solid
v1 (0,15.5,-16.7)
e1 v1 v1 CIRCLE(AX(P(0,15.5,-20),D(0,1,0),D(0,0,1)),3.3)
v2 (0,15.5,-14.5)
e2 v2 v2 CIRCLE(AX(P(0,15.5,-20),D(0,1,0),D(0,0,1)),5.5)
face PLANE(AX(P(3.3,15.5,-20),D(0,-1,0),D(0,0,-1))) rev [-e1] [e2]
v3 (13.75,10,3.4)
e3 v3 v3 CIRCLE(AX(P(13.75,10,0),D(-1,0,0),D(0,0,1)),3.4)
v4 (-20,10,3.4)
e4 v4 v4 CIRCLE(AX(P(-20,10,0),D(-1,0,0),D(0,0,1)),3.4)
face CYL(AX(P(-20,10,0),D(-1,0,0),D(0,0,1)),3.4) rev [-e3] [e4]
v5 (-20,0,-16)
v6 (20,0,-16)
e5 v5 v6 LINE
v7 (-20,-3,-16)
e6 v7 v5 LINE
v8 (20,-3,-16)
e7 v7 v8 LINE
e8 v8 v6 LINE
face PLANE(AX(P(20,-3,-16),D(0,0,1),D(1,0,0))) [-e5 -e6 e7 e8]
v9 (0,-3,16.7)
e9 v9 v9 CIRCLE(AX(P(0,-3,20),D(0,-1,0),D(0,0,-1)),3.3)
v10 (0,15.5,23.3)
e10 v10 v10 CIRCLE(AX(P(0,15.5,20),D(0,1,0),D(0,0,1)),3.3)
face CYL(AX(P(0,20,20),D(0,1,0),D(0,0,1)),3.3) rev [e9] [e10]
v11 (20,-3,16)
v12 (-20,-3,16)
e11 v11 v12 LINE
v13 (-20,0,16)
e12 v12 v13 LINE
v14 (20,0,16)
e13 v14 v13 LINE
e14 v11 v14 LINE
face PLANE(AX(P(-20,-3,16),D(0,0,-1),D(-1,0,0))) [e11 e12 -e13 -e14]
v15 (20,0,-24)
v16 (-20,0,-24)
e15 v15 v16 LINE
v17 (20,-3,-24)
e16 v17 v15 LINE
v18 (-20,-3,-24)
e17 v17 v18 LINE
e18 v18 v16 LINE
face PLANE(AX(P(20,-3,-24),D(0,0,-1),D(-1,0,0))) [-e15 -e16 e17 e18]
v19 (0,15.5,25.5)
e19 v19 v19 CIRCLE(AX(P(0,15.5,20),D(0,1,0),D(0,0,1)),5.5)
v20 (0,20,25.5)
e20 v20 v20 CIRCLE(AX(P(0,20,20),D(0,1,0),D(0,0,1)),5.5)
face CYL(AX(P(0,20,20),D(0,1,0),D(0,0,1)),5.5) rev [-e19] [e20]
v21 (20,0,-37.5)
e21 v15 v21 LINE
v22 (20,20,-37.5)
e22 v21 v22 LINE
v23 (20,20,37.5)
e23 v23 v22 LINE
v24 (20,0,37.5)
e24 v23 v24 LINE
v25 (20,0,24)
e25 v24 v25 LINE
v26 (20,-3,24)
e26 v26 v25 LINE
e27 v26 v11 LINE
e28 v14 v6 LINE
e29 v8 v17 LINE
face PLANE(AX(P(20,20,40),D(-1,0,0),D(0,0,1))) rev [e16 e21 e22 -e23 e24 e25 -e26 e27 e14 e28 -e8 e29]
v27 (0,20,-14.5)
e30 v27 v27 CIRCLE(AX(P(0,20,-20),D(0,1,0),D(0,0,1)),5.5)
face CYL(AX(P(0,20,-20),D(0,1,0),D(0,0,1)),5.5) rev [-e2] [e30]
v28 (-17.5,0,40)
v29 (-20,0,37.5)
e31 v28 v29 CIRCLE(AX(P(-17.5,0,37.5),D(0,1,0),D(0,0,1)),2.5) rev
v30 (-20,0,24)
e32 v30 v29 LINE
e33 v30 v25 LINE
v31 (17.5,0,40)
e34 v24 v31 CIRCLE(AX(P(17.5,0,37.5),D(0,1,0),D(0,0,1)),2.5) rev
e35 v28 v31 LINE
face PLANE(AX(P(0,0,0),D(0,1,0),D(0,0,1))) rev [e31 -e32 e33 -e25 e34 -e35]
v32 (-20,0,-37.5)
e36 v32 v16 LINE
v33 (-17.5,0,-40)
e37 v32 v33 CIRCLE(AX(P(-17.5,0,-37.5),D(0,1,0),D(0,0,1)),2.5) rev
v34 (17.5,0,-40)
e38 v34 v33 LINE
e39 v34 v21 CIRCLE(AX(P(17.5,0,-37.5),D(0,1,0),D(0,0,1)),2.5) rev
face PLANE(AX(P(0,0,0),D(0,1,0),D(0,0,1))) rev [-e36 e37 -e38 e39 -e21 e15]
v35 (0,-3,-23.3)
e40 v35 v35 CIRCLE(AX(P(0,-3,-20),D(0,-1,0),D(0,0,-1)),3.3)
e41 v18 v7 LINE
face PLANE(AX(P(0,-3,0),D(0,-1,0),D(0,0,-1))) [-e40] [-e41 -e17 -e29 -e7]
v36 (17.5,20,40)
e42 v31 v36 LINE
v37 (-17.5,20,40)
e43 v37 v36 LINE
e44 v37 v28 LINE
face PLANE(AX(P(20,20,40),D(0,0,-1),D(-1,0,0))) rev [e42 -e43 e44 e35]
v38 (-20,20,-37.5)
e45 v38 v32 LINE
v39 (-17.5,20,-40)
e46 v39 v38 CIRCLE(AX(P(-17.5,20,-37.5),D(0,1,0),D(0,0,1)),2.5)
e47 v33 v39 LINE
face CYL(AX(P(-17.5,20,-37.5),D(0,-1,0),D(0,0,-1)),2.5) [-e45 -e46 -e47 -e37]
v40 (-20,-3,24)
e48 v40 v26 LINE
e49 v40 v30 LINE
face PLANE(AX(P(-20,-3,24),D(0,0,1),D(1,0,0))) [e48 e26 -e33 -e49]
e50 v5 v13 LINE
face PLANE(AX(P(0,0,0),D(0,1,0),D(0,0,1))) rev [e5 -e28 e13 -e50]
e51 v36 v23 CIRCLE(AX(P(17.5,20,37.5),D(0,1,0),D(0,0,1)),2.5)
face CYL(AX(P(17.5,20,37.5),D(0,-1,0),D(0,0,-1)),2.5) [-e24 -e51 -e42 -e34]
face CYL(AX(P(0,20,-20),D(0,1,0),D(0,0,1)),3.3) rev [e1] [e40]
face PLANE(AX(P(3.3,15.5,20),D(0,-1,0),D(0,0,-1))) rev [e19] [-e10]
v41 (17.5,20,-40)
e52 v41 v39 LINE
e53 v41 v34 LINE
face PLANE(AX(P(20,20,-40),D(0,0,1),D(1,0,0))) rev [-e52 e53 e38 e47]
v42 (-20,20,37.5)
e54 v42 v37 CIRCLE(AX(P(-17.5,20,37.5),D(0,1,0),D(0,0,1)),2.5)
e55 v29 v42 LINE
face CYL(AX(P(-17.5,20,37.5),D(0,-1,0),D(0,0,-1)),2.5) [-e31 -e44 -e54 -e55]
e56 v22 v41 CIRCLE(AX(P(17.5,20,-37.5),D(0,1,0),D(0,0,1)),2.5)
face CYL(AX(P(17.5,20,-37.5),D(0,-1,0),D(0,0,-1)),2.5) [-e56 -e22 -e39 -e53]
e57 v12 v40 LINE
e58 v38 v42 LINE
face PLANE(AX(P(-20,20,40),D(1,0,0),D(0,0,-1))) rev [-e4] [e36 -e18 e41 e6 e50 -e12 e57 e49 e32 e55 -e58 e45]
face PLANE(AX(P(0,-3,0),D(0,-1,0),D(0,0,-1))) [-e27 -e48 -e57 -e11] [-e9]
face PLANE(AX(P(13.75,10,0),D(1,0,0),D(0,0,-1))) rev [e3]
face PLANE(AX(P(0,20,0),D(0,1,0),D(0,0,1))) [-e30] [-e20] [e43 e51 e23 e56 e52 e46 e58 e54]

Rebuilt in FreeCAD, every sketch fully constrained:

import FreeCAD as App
import Part
import Sketcher

V = App.Vector


def edges_at(feature, points):
    """Names of the edges that pass closest to the given points."""
    edges = feature.Shape.Edges
    near = lambda p: min(range(len(edges)), key=lambda i: edges[i].distToShape(Part.Vertex(*p))[0])
    return sorted({f"Edge{near(p) + 1}" for p in points})


def add_polygon(sketch, points):
    """Adds a closed chain of lines whose ends are joined by coincident constraints."""
    first, n = sketch.GeometryCount, len(points)
    for a, b in zip(points, points[1:] + points[:1]):
        sketch.addGeometry(Part.LineSegment(App.Vector(*a, 0), App.Vector(*b, 0)), False)
    for i in range(n):
        sketch.addConstraint(Sketcher.Constraint("Coincident", first + i, 2, first + (i + 1) % n, 1))

doc = App.newDocument("Part")
body = doc.addObject("PartDesign::Body", "Body")

# Sketch on XZ plane
sketch1 = body.newObject("Sketcher::SketchObject", "Sketch")
sketch1.AttachmentSupport = (doc.getObject("XZ_Plane"), [""])
sketch1.MapMode = "FlatFace"
add_polygon(sketch1, [(-20, -40), (-20, 40), (20, 40), (20, -40)])  # lines 0-3
sketch1.addConstraint([
    Sketcher.Constraint("Vertical", 0),
    Sketcher.Constraint("Horizontal", 1),
    Sketcher.Constraint("Vertical", 2),
    Sketcher.Constraint("Horizontal", 3),
    Sketcher.Constraint("Symmetric", 0, 2, 2, 2, -1, 1),
    Sketcher.Constraint("DistanceX", 1, 1, 1, 2, 40.0),
    Sketcher.Constraint("DistanceY", 0, 1, 0, 2, 80.0),
])
pad1 = body.newObject("PartDesign::Pad", "Pad")
pad1.Profile = sketch1
pad1.Length = 20
pad1.Reversed = True

# Sketch on XZ plane
sketch2 = body.newObject("Sketcher::SketchObject", "Sketch001")
sketch2.AttachmentSupport = (doc.getObject("XZ_Plane"), [""])
sketch2.MapMode = "FlatFace"
add_polygon(sketch2, [(-20, 16), (-20, 24), (20, 24), (20, 16)])  # lines 0-3
add_polygon(sketch2, [(-20, -24), (-20, -16), (20, -16), (20, -24)])  # lines 4-7
sketch2.addConstraint([
    Sketcher.Constraint("Vertical", 0),
    Sketcher.Constraint("Horizontal", 1),
    Sketcher.Constraint("Vertical", 2),
    Sketcher.Constraint("Horizontal", 3),
    Sketcher.Constraint("Vertical", 4),
    Sketcher.Constraint("Horizontal", 5),
    Sketcher.Constraint("Vertical", 6),
    Sketcher.Constraint("Horizontal", 7),
    Sketcher.Constraint("Symmetric", 2, 2, 4, 2, -1, 1),
    Sketcher.Constraint("Symmetric", 0, 2, 6, 2, -1, 1),
    Sketcher.Constraint("Vertical", 3, 2, 4, 2),
    Sketcher.Constraint("DistanceX", 1, 1, 1, 2, 40.0),
    Sketcher.Constraint("DistanceY", 0, 1, 0, 2, 8.0),
    Sketcher.Constraint("DistanceY", -1, 1, 0, 2, 24.0),
])
pad2 = body.newObject("PartDesign::Pad", "Pad001")
pad2.Profile = sketch2
pad2.Length = 3

# Sketch on XZ plane
sketch3 = body.newObject("Sketcher::SketchObject", "Sketch002")
sketch3.AttachmentSupport = (doc.getObject("XZ_Plane"), [""])
sketch3.MapMode = "FlatFace"
sketch3.AttachmentOffset = App.Placement(V(0, 0, -20), App.Rotation())
sketch3.addGeometry([
    Part.Circle(V(0, 20, 0), V(0, 0, 1), 3.3),
    Part.Circle(V(0, -20, 0), V(0, 0, 1), 3.3),
], False)
sketch3.addConstraint([
    Sketcher.Constraint("Equal", 0, 1),
    Sketcher.Constraint("Symmetric", 0, 3, 1, 3, -1, 1),
    Sketcher.Constraint("PointOnObject", 0, 3, -2),
    Sketcher.Constraint("Diameter", 0, 6.6),
    Sketcher.Constraint("DistanceY", -1, 1, 0, 3, 20.0),
])
doc.recompute()
hole = body.newObject("PartDesign::Hole", "Hole")
hole.Profile = sketch3
hole.ThreadType = "None"
hole.Diameter = 6.6
hole.DepthType = "Dimension"
hole.Depth = 24.5
hole.DrillPoint = "Flat"
hole.HoleCutType = "Counterbore"
hole.HoleCutDiameter = 11
hole.HoleCutDepth = 4.5
hole.Reversed = True

# Sketch on YZ plane
sketch4 = body.newObject("Sketcher::SketchObject", "Sketch003")
sketch4.AttachmentSupport = (doc.getObject("YZ_Plane"), [""])
sketch4.MapMode = "FlatFace"
sketch4.AttachmentOffset = App.Placement(V(0, 0, -20), App.Rotation())
sketch4.addGeometry(Part.Circle(V(10, 0, 0), V(0, 0, 1), 3.4), False)
sketch4.addConstraint([
    Sketcher.Constraint("PointOnObject", 0, 3, -1),
    Sketcher.Constraint("Diameter", 0, 6.8),
    Sketcher.Constraint("DistanceX", -1, 1, 0, 3, 10.0),
])
doc.recompute()
hole2 = body.newObject("PartDesign::Hole", "Hole001")
hole2.Profile = sketch4
hole2.ThreadType = "None"
hole2.Diameter = 6.8
hole2.DepthType = "Dimension"
hole2.Depth = 33.75
hole2.DrillPoint = "Flat"
hole2.Reversed = True
doc.recompute()

fillet = body.newObject("PartDesign::Fillet", "Fillet")
fillet.Base = (hole2, edges_at(hole2, [
    (-20, 10, -40),
    (20, 10, -40),
    (20, 10, 40),
    (-20, 10, 40),
]))
fillet.Radius = 2.5

doc.recompute()
